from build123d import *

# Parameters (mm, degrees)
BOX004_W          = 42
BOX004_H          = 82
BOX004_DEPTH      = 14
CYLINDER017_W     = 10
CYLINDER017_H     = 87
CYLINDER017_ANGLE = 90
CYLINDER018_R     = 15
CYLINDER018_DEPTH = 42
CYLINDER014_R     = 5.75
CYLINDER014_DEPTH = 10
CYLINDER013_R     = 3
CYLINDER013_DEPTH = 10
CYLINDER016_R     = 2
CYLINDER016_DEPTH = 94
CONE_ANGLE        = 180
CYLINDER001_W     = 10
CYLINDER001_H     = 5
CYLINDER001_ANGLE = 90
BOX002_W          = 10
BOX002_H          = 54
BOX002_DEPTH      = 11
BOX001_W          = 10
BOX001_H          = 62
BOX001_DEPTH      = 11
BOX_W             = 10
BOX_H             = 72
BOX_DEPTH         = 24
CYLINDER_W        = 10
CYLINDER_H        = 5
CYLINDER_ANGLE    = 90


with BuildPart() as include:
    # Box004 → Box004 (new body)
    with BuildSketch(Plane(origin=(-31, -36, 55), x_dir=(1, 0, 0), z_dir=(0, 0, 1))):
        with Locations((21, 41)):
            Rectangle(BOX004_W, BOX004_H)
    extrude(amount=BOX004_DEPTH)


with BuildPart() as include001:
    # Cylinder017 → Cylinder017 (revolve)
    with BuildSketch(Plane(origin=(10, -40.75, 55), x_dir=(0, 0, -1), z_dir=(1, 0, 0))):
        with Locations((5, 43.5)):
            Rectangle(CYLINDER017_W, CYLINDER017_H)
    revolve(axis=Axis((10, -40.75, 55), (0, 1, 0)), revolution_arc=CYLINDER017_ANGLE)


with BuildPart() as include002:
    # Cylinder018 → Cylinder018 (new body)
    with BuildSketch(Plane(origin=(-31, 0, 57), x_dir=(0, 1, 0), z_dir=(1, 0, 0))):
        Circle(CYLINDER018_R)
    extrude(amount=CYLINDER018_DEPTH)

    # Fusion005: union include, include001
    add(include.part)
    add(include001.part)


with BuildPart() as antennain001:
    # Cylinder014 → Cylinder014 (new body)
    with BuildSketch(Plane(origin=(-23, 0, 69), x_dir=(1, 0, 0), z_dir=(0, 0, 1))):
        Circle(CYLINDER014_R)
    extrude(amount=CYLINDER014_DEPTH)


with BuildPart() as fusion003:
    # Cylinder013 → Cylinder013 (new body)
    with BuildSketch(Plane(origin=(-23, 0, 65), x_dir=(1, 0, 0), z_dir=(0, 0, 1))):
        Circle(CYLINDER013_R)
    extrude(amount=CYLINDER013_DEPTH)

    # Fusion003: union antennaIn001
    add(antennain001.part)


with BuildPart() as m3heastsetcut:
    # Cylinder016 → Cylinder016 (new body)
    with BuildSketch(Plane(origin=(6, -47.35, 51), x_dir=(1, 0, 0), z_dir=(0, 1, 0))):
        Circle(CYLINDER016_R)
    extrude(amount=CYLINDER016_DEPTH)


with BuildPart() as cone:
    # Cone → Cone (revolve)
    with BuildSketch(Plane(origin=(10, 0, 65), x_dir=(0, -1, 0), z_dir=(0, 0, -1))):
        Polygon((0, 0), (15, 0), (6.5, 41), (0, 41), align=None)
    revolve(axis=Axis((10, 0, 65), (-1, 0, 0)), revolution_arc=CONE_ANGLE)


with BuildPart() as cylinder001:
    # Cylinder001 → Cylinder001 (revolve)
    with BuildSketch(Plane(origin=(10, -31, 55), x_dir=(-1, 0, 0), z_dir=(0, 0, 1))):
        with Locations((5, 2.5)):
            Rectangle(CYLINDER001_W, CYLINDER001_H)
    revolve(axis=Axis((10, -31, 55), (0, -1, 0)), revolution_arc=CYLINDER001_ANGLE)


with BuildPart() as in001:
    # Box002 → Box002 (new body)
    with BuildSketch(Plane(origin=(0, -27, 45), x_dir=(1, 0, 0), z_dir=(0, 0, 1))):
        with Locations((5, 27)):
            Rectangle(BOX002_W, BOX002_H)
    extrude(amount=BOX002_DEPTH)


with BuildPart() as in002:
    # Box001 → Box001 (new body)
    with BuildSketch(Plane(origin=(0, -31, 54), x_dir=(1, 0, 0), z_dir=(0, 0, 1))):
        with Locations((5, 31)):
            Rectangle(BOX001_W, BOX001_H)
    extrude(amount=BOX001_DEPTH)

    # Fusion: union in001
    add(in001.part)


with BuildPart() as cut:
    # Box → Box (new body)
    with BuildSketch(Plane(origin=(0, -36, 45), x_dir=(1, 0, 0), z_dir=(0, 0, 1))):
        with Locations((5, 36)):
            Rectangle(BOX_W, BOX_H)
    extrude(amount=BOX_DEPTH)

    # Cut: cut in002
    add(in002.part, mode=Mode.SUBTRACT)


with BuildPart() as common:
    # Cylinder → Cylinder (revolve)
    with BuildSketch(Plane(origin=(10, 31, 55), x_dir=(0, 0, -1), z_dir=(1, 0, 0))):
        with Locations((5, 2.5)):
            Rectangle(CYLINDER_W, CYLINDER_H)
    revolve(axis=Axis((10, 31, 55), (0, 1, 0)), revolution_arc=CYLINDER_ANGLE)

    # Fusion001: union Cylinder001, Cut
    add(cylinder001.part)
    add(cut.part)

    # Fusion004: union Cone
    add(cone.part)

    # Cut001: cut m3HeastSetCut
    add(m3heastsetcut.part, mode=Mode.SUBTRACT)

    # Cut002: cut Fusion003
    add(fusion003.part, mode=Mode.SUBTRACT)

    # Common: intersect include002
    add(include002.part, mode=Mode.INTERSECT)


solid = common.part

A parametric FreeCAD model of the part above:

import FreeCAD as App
import Part
import Sketcher
Q = App.Units.Quantity


def add_polygon(sketch, points):
    """Adds a closed chain of lines whose ends are joined by coincident constraints."""
    first, n = sketch.GeometryCount, len(points)
    for a, b in zip(points, points[1:] + points[:1]):
        sketch.addGeometry(Part.LineSegment(App.Vector(*a, 0), App.Vector(*b, 0)), False)
    for i in range(n):
        sketch.addConstraint(Sketcher.Constraint("Coincident", first + i, 2, first + (i + 1) % n, 1))

doc = App.newDocument("Part")
body = doc.addObject("PartDesign::Body", "Body")

sketch1 = body.newObject("Sketcher::SketchObject", "Sketch")
sketch1.AttachmentSupport = (doc.getObject("XY_Plane"), [""])
sketch1.MapMode = "FlatFace"
sketch1.AttachmentOffset = App.Placement(App.Vector(0, 0, 55), App.Rotation())
add_polygon(sketch1, [(-31, 46), (-31, -36), (11, -36), (11, 46)])
sketch1.addConstraint(Sketcher.Constraint("Vertical", 0))
sketch1.addConstraint(Sketcher.Constraint("Horizontal", 1))
sketch1.addConstraint(Sketcher.Constraint("Vertical", 2))
sketch1.addConstraint(Sketcher.Constraint("Horizontal", 3))
sketch1.addConstraint(Sketcher.Constraint("DistanceX", 1, 1, 1, 2, Q("42 mm")))
sketch1.addConstraint(Sketcher.Constraint("DistanceY", 0, 2, 0, 1, Q("82 mm")))
sketch1.addConstraint(Sketcher.Constraint("DistanceX", 0, 2, -1, 1, Q("31 mm")))
sketch1.addConstraint(Sketcher.Constraint("DistanceY", 0, 2, -1, 1, Q("36 mm")))
pad1 = body.newObject("PartDesign::Pad", "Pad")
pad1.Profile = sketch1
pad1.Length = 14
body2 = doc.addObject("PartDesign::Body", "Body001")

sketch2 = body2.newObject("Sketcher::SketchObject", "Sketch001")
sketch2.AttachmentSupport = (doc.getObject("YZ_Plane001"), [""])
sketch2.MapMode = "FlatFace"
sketch2.AttachmentOffset = App.Placement(App.Vector(0, 0, 10), App.Rotation())
add_polygon(sketch2, [(46, 55), (-41, 55), (-41, 45), (46, 45)])
sketch2.addGeometry(Part.LineSegment(App.Vector(-41, 55, 0), App.Vector(46, 55, 0)), True)
sketch2.addConstraint(Sketcher.Constraint("Horizontal", 0))
sketch2.addConstraint(Sketcher.Constraint("Vertical", 1))
sketch2.addConstraint(Sketcher.Constraint("Horizontal", 2))
sketch2.addConstraint(Sketcher.Constraint("Vertical", 3))
sketch2.addConstraint(Sketcher.Constraint("Horizontal", 4))
sketch2.addConstraint(Sketcher.Constraint("Coincident", 4, 1, 0, 2))
sketch2.addConstraint(Sketcher.Constraint("Vertical", 2, 2, 4, 2))
sketch2.addConstraint(Sketcher.Constraint("DistanceX", 0, 2, 0, 1, Q("87 mm")))
sketch2.addConstraint(Sketcher.Constraint("DistanceY", 1, 2, 1, 1, Q("10 mm")))
sketch2.addConstraint(Sketcher.Constraint("DistanceY", -1, 1, 0, 2, Q("55 mm")))
sketch2.addConstraint(Sketcher.Constraint("DistanceX", 0, 2, -1, 1, Q("40.75 mm")))
revolution = body2.newObject("PartDesign::Revolution", "Revolution")
revolution.Profile = sketch2
revolution.ReferenceAxis = (sketch2, ["Axis0"])
revolution.Angle = 90
body3 = doc.addObject("PartDesign::Body", "Body002")

sketch3 = body3.newObject("Sketcher::SketchObject", "Sketch002")
sketch3.AttachmentSupport = (doc.getObject("YZ_Plane002"), [""])
sketch3.MapMode = "FlatFace"
sketch3.AttachmentOffset = App.Placement(App.Vector(0, 0, -31), App.Rotation())
sketch3.addGeometry(Part.Circle(App.Vector(0, 57, 0), App.Vector(0, 0, 1), 15), False)
sketch3.addConstraint(Sketcher.Constraint("PointOnObject", 0, 3, -2))
sketch3.addConstraint(Sketcher.Constraint("Diameter", 0, Q("30 mm")))
sketch3.addConstraint(Sketcher.Constraint("DistanceY", -1, 1, 0, 3, Q("57 mm")))
pad2 = body3.newObject("PartDesign::Pad", "Pad001")
pad2.Profile = sketch3
pad2.Length = 42
doc.recompute()

boolean = body3.newObject("PartDesign::Boolean", "Boolean")
boolean.Type = "Fuse"
boolean.addObjects([body])
doc.recompute()

boolean2 = body3.newObject("PartDesign::Boolean", "Boolean001")
boolean2.Type = "Fuse"
boolean2.addObjects([body2])
body4 = doc.addObject("PartDesign::Body", "Body003")

sketch4 = body4.newObject("Sketcher::SketchObject", "Sketch003")
sketch4.AttachmentSupport = (doc.getObject("XY_Plane003"), [""])
sketch4.MapMode = "FlatFace"
sketch4.AttachmentOffset = App.Placement(App.Vector(0, 0, 69), App.Rotation())
sketch4.addGeometry(Part.Circle(App.Vector(-23, 0, 0), App.Vector(0, 0, 1), 6), False)
sketch4.addConstraint(Sketcher.Constraint("PointOnObject", 0, 3, -1))
sketch4.addConstraint(Sketcher.Constraint("Diameter", 0, Q("11.5 mm")))
sketch4.addConstraint(Sketcher.Constraint("DistanceX", 0, 3, -1, 1, Q("23 mm")))
pad3 = body4.newObject("PartDesign::Pad", "Pad002")
pad3.Profile = sketch4
pad3.Length = 10
body5 = doc.addObject("PartDesign::Body", "Body004")

sketch5 = body5.newObject("Sketcher::SketchObject", "Sketch004")
sketch5.AttachmentSupport = (doc.getObject("XY_Plane004"), [""])
sketch5.MapMode = "FlatFace"
sketch5.AttachmentOffset = App.Placement(App.Vector(0, 0, 65), App.Rotation())
sketch5.addGeometry(Part.Circle(App.Vector(-23, 0, 0), App.Vector(0, 0, 1), 3), False)
sketch5.addConstraint(Sketcher.Constraint("PointOnObject", 0, 3, -1))
sketch5.addConstraint(Sketcher.Constraint("Diameter", 0, Q("6 mm")))
sketch5.addConstraint(Sketcher.Constraint("DistanceX", 0, 3, -1, 1, Q("23 mm")))
pad4 = body5.newObject("PartDesign::Pad", "Pad003")
pad4.Profile = sketch5
pad4.Length = 10
doc.recompute()

boolean3 = body5.newObject("PartDesign::Boolean", "Boolean002")
boolean3.Type = "Fuse"
boolean3.addObjects([body4])
body6 = doc.addObject("PartDesign::Body", "Body005")

sketch6 = body6.newObject("Sketcher::SketchObject", "Sketch005")
sketch6.AttachmentSupport = (doc.getObject("XZ_Plane005"), [""])
sketch6.MapMode = "FlatFace"
sketch6.AttachmentOffset = App.Placement(App.Vector(0, 0, 47.35), App.Rotation())
sketch6.addGeometry(Part.Circle(App.Vector(6, 51, 0), App.Vector(0, 0, 1), 2), False)
sketch6.addConstraint(Sketcher.Constraint("Diameter", 0, Q("4 mm")))
sketch6.addConstraint(Sketcher.Constraint("DistanceX", -1, 1, 0, 3, Q("6 mm")))
sketch6.addConstraint(Sketcher.Constraint("DistanceY", -1, 1, 0, 3, Q("51 mm")))
pad5 = body6.newObject("PartDesign::Pad", "Pad004")
pad5.Profile = sketch6
pad5.Length = 94
pad5.Reversed = True
body7 = doc.addObject("PartDesign::Body", "Body006")

sketch7 = body7.newObject("Sketcher::SketchObject", "Sketch006")
sketch7.AttachmentSupport = (doc.getObject("XY_Plane006"), [""])
sketch7.MapMode = "FlatFace"
sketch7.AttachmentOffset = App.Placement(App.Vector(0, 0, 65), App.Rotation())
add_polygon(sketch7, [(10, 0), (10, -15), (-31, -6), (-31, 0)])
sketch7.addConstraint(Sketcher.Constraint("Vertical", 0))
sketch7.addConstraint(Sketcher.Constraint("Vertical", 2))
sketch7.addConstraint(Sketcher.Constraint("Horizontal", 3))
sketch7.addConstraint(Sketcher.Constraint("PointOnObject", 2, 2, -1))
sketch7.addConstraint(Sketcher.Constraint("DistanceX", 3, 1, 3, 2, Q("41 mm")))
sketch7.addConstraint(Sketcher.Constraint("DistanceY", 0, 2, 0, 1, Q("15 mm")))
sketch7.addConstraint(Sketcher.Constraint("DistanceY", 2, 1, 2, 2, Q("6.5 mm")))
sketch7.addConstraint(Sketcher.Constraint("DistanceX", -1, 1, 0, 2, Q("10 mm")))
revolution2 = body7.newObject("PartDesign::Revolution", "Revolution001")
revolution2.Profile = sketch7
revolution2.ReferenceAxis = (sketch7, ["H_Axis"])
revolution2.Angle = 180
revolution2.Reversed = True
body8 = doc.addObject("PartDesign::Body", "Body007")

sketch8 = body8.newObject("Sketcher::SketchObject", "Sketch007")
sketch8.AttachmentSupport = (doc.getObject("XY_Plane007"), [""])
sketch8.MapMode = "FlatFace"
sketch8.AttachmentOffset = App.Placement(App.Vector(0, 0, 55), App.Rotation())
add_polygon(sketch8, [(10, -36), (10, -31), (0, -31), (0, -36)])
sketch8.addGeometry(Part.LineSegment(App.Vector(10, -31, 0), App.Vector(10, -36, 0)), True)
sketch8.addConstraint(Sketcher.Constraint("Vertical", 0))
sketch8.addConstraint(Sketcher.Constraint("Horizontal", 1))
sketch8.addConstraint(Sketcher.Constraint("Vertical", 2))
sketch8.addConstraint(Sketcher.Constraint("Horizontal", 3))
sketch8.addConstraint(Sketcher.Constraint("Vertical", 4))
sketch8.addConstraint(Sketcher.Constraint("Coincident", 4, 1, 0, 2))
sketch8.addConstraint(Sketcher.Constraint("PointOnObject", 1, 2, -2))
sketch8.addConstraint(Sketcher.Constraint("Horizontal", 2, 2, 4, 2))
sketch8.addConstraint(Sketcher.Constraint("DistanceX", 1, 2, 1, 1, Q("10 mm")))
sketch8.addConstraint(Sketcher.Constraint("DistanceY", 0, 1, 0, 2, Q("5 mm")))
sketch8.addConstraint(Sketcher.Constraint("DistanceY", 0, 2, -1, 1, Q("31 mm")))
revolution3 = body8.newObject("PartDesign::Revolution", "Revolution002")
revolution3.Profile = sketch8
revolution3.ReferenceAxis = (sketch8, ["Axis0"])
revolution3.Angle = 90
body9 = doc.addObject("PartDesign::Body", "Body008")

sketch9 = body9.newObject("Sketcher::SketchObject", "Sketch008")
sketch9.AttachmentSupport = (doc.getObject("XY_Plane008"), [""])
sketch9.MapMode = "FlatFace"
sketch9.AttachmentOffset = App.Placement(App.Vector(0, 0, 45), App.Rotation())
add_polygon(sketch9, [(0, 27), (0, -27), (10, -27), (10, 27)])
sketch9.addConstraint(Sketcher.Constraint("Vertical", 0))
sketch9.addConstraint(Sketcher.Constraint("Horizontal", 1))
sketch9.addConstraint(Sketcher.Constraint("Vertical", 2))
sketch9.addConstraint(Sketcher.Constraint("Horizontal", 3))
sketch9.addConstraint(Sketcher.Constraint("Symmetric", 0, 2, 3, 2, -1, 1))
sketch9.addConstraint(Sketcher.Constraint("DistanceX", 1, 1, 1, 2, Q("10 mm")))
sketch9.addConstraint(Sketcher.Constraint("DistanceY", 0, 2, 0, 1, Q("54 mm")))
pad6 = body9.newObject("PartDesign::Pad", "Pad005")
pad6.Profile = sketch9
pad6.Length = 11
body10 = doc.addObject("PartDesign::Body", "Body009")

sketch10 = body10.newObject("Sketcher::SketchObject", "Sketch009")
sketch10.AttachmentSupport = (doc.getObject("XY_Plane009"), [""])
sketch10.MapMode = "FlatFace"
sketch10.AttachmentOffset = App.Placement(App.Vector(0, 0, 54), App.Rotation())
add_polygon(sketch10, [(0, 31), (0, -31), (10, -31), (10, 31)])
sketch10.addConstraint(Sketcher.Constraint("Vertical", 0))
sketch10.addConstraint(Sketcher.Constraint("Horizontal", 1))
sketch10.addConstraint(Sketcher.Constraint("Vertical", 2))
sketch10.addConstraint(Sketcher.Constraint("Horizontal", 3))
sketch10.addConstraint(Sketcher.Constraint("Symmetric", 0, 2, 3, 2, -1, 1))
sketch10.addConstraint(Sketcher.Constraint("DistanceX", 1, 1, 1, 2, Q("10 mm")))
sketch10.addConstraint(Sketcher.Constraint("DistanceY", 0, 2, 0, 1, Q("62 mm")))
pad7 = body10.newObject("PartDesign::Pad", "Pad006")
pad7.Profile = sketch10
pad7.Length = 11
doc.recompute()

boolean4 = body10.newObject("PartDesign::Boolean", "Boolean003")
boolean4.Type = "Fuse"
boolean4.addObjects([body9])
body11 = doc.addObject("PartDesign::Body", "Body010")

sketch11 = body11.newObject("Sketcher::SketchObject", "Sketch010")
sketch11.AttachmentSupport = (doc.getObject("XY_Plane010"), [""])
sketch11.MapMode = "FlatFace"
sketch11.AttachmentOffset = App.Placement(App.Vector(0, 0, 45), App.Rotation())
add_polygon(sketch11, [(0, 36), (0, -36), (10, -36), (10, 36)])
sketch11.addConstraint(Sketcher.Constraint("Vertical", 0))
sketch11.addConstraint(Sketcher.Constraint("Horizontal", 1))
sketch11.addConstraint(Sketcher.Constraint("Vertical", 2))
sketch11.addConstraint(Sketcher.Constraint("Horizontal", 3))
sketch11.addConstraint(Sketcher.Constraint("Symmetric", 0, 2, 3, 2, -1, 1))
sketch11.addConstraint(Sketcher.Constraint("DistanceX", 1, 1, 1, 2, Q("10 mm")))
sketch11.addConstraint(Sketcher.Constraint("DistanceY", 0, 2, 0, 1, Q("72 mm")))
pad8 = body11.newObject("PartDesign::Pad", "Pad007")
pad8.Profile = sketch11
pad8.Length = 24
doc.recompute()

boolean5 = body11.newObject("PartDesign::Boolean", "Boolean004")
boolean5.Type = "Cut"
boolean5.addObjects([body10])
body12 = doc.addObject("PartDesign::Body", "Body011")
body12.AllowCompound = True

sketch12 = body12.newObject("Sketcher::SketchObject", "Sketch011")
sketch12.AttachmentSupport = (doc.getObject("YZ_Plane011"), [""])
sketch12.MapMode = "FlatFace"
sketch12.AttachmentOffset = App.Placement(App.Vector(0, 0, 10), App.Rotation())
add_polygon(sketch12, [(36, 55), (31, 55), (31, 45), (36, 45)])
sketch12.addGeometry(Part.LineSegment(App.Vector(31, 55, 0), App.Vector(36, 55, 0)), True)
sketch12.addConstraint(Sketcher.Constraint("Horizontal", 0))
sketch12.addConstraint(Sketcher.Constraint("Vertical", 1))
sketch12.addConstraint(Sketcher.Constraint("Horizontal", 2))
sketch12.addConstraint(Sketcher.Constraint("Vertical", 3))
sketch12.addConstraint(Sketcher.Constraint("Horizontal", 4))
sketch12.addConstraint(Sketcher.Constraint("Coincident", 4, 1, 0, 2))
sketch12.addConstraint(Sketcher.Constraint("Vertical", 2, 2, 4, 2))
sketch12.addConstraint(Sketcher.Constraint("DistanceX", 0, 2, 0, 1, Q("5 mm")))
sketch12.addConstraint(Sketcher.Constraint("DistanceY", 1, 2, 1, 1, Q("10 mm")))
sketch12.addConstraint(Sketcher.Constraint("DistanceX", -1, 1, 0, 2, Q("31 mm")))
sketch12.addConstraint(Sketcher.Constraint("DistanceY", -1, 1, 0, 2, Q("55 mm")))
revolution4 = body12.newObject("PartDesign::Revolution", "Revolution003")
revolution4.Profile = sketch12
revolution4.ReferenceAxis = (sketch12, ["Axis0"])
revolution4.Angle = 90
doc.recompute()

boolean6 = body12.newObject("PartDesign::Boolean", "Boolean005")
boolean6.Type = "Fuse"
boolean6.addObjects([body8])
doc.recompute()

boolean7 = body12.newObject("PartDesign::Boolean", "Boolean006")
boolean7.Type = "Fuse"
boolean7.addObjects([body11])
doc.recompute()

boolean8 = body12.newObject("PartDesign::Boolean", "Boolean007")
boolean8.Type = "Fuse"
boolean8.addObjects([body7])
doc.recompute()

boolean9 = body12.newObject("PartDesign::Boolean", "Boolean008")
boolean9.Type = "Cut"
boolean9.addObjects([body6])
doc.recompute()

boolean10 = body12.newObject("PartDesign::Boolean", "Boolean009")
boolean10.Type = "Cut"
boolean10.addObjects([body5])
doc.recompute()

boolean11 = body12.newObject("PartDesign::Boolean", "Boolean010")
boolean11.Type = "Common"
boolean11.addObjects([body3])

doc.recompute()
